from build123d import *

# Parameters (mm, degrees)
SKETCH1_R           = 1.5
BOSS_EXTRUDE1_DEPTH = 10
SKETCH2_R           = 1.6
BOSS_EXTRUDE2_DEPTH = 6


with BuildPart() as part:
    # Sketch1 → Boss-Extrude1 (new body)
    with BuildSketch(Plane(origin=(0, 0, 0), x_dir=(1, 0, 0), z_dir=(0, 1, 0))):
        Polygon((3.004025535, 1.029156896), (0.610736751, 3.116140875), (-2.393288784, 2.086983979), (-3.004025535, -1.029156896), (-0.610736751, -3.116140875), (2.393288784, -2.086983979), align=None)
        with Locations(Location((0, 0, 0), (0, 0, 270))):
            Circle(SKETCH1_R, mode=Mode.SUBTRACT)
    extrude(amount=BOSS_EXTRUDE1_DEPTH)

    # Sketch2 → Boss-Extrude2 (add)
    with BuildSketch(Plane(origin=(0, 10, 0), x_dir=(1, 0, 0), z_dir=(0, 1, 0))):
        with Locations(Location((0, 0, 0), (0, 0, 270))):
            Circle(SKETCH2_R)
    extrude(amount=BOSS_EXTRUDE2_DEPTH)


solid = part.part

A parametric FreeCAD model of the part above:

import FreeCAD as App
import Part
import Sketcher

V = App.Vector
Q = App.Units.Quantity

doc = App.newDocument("Part")
body = doc.addObject("PartDesign::Body", "Body")

# Sketch on XZ plane
sketch1 = doc.addObject("Sketcher::SketchObject", "Sketch")
body.addObject(sketch1)
sketch1.AttachmentSupport = (doc.XZ_Plane, [""])
sketch1.MapMode = "FlatFace"
sketch1.addGeometry([
    Part.LineSegment(V(3, -1, 0), V(0.6, -3.1, 0)),  # 0
    Part.LineSegment(V(0.6, -3.1, 0), V(-2.4, -2.1, 0)),  # 1
    Part.LineSegment(V(-2.4, -2.1, 0), V(-3, 1, 0)),  # 2
    Part.LineSegment(V(-3, 1, 0), V(-0.6, 3.1, 0)),  # 3
    Part.LineSegment(V(-0.6, 3.1, 0), V(2.4, 2.1, 0)),  # 4
    Part.LineSegment(V(2.4, 2.1, 0), V(3, -1, 0)),  # 5
    Part.Circle(V(0, 0, 0), V(0, 0, 1), 1.5),  # 6
], False)
sketch1.addConstraint([
    Sketcher.Constraint("Coincident", 0, 2, 1, 1),
    Sketcher.Constraint("Coincident", 1, 2, 2, 1),
    Sketcher.Constraint("Coincident", 2, 2, 3, 1),
    Sketcher.Constraint("Coincident", 3, 2, 4, 1),
    Sketcher.Constraint("Coincident", 4, 2, 5, 1),
    Sketcher.Constraint("Coincident", 5, 2, 0, 1),
    Sketcher.Constraint("Coincident", 6, 3, -1, 1),
    Sketcher.Constraint("Symmetric", 0, 2, 3, 2, -1, 1),
    Sketcher.Constraint("Symmetric", 1, 2, 4, 2, -1, 1),
    Sketcher.Constraint("Symmetric", 2, 2, 5, 2, -1, 1),
    Sketcher.Constraint("Equal", 0, 1),
    Sketcher.Constraint("Equal", 1, 2),
    Sketcher.Constraint("Diameter", 6, Q("3 mm")),
    Sketcher.Constraint("DistanceY", 0, 2, -1, 1, Q("3.116141 mm")),
    Sketcher.Constraint("DistanceX", 1, 2, -1, 1, Q("2.393289 mm")),
    Sketcher.Constraint("DistanceY", 1, 2, 2, 2, Q("3.116141 mm")),
    Sketcher.Constraint("DistanceX", 2, 2, 3, 2, Q("2.393289 mm")),
])
pad1 = doc.addObject("PartDesign::Pad", "Pad")
body.addObject(pad1)
pad1.Profile = sketch1
pad1.Length = 10
pad1.Reversed = True

# Sketch on XZ plane
sketch2 = doc.addObject("Sketcher::SketchObject", "Sketch001")
body.addObject(sketch2)
sketch2.AttachmentSupport = (doc.XZ_Plane, [""])
sketch2.MapMode = "FlatFace"
sketch2.AttachmentOffset = App.Placement(V(0, 0, -10), App.Rotation())
sketch2.addGeometry(Part.Circle(V(0, 0, 0), V(0, 0, 1), 1.6), False)
sketch2.addConstraint([
    Sketcher.Constraint("Coincident", 0, 3, -1, 1),
    Sketcher.Constraint("Diameter", 0, Q("3.2 mm")),
])
pad2 = doc.addObject("PartDesign::Pad", "Pad001")
body.addObject(pad2)
pad2.Profile = sketch2
pad2.Length = 6
pad2.Reversed = True

doc.recompute()
